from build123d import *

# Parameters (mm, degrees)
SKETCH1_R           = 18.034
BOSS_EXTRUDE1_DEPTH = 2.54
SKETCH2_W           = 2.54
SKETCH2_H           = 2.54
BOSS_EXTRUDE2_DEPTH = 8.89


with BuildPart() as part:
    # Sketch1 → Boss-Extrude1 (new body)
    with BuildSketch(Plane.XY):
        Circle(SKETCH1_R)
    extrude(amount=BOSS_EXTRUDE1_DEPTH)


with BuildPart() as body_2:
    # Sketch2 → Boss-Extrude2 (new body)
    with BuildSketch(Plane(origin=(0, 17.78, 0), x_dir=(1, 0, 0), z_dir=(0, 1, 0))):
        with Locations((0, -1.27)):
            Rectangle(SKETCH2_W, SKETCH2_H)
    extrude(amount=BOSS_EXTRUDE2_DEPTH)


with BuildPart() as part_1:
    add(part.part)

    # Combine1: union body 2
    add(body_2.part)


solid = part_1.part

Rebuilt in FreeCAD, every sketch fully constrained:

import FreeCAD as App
import Part
import Sketcher
Q = App.Units.Quantity


def add_polygon(sketch, points):
    """Adds a closed chain of lines whose ends are joined by coincident constraints."""
    first, n = sketch.GeometryCount, len(points)
    for a, b in zip(points, points[1:] + points[:1]):
        sketch.addGeometry(Part.LineSegment(App.Vector(*a, 0), App.Vector(*b, 0)), False)
    for i in range(n):
        sketch.addConstraint(Sketcher.Constraint("Coincident", first + i, 2, first + (i + 1) % n, 1))

doc = App.newDocument("Part")
body = doc.addObject("PartDesign::Body", "Body")

sketch1 = doc.addObject("Sketcher::SketchObject", "Sketch")
body.addObject(sketch1)
sketch1.AttachmentSupport = (doc.XY_Plane, [""])
sketch1.MapMode = "FlatFace"
sketch1.addGeometry(Part.Circle(App.Vector(0, 0, 0), App.Vector(0, 0, 1), 18), False)
sketch1.addConstraint([
    Sketcher.Constraint("Coincident", 0, 3, -1, 1),
    Sketcher.Constraint("Diameter", 0, Q("1.42 in")),
])
pad1 = doc.addObject("PartDesign::Pad", "Pad")
body.addObject(pad1)
pad1.Profile = sketch1
pad1.Length = Q("0.1 in")
body2 = doc.addObject("PartDesign::Body", "Body001")

sketch2 = doc.addObject("Sketcher::SketchObject", "Sketch001")
body2.addObject(sketch2)
sketch2.AttachmentSupport = (doc.getObject("XZ_Plane001"), [""])
sketch2.MapMode = "FlatFace"
sketch2.AttachmentOffset = App.Placement(App.Vector(0, 0, -0.7 * 25.4), App.Rotation())
add_polygon(sketch2, [(-1.3, 0), (-1.3, 2.5), (1.3, 2.5), (1.3, 0)])
sketch2.addConstraint([
    Sketcher.Constraint("Vertical", 0),
    Sketcher.Constraint("Horizontal", 1),
    Sketcher.Constraint("Vertical", 2),
    Sketcher.Constraint("Horizontal", 3),
    Sketcher.Constraint("Symmetric", 2, 2, 3, 2, -1, 1),
    Sketcher.Constraint("Equal", 3, 0),
    Sketcher.Constraint("DistanceX", 1, 1, 1, 2, Q("0.1 in")),
])
pad2 = doc.addObject("PartDesign::Pad", "Pad001")
body2.addObject(pad2)
pad2.Profile = sketch2
pad2.Length = Q("0.35 in")
pad2.Reversed = True
doc.recompute()

boolean = doc.addObject("PartDesign::Boolean", "Boolean")
body.addObject(boolean)
boolean.Type = "Fuse"
boolean.addObjects([body2])

doc.recompute()
